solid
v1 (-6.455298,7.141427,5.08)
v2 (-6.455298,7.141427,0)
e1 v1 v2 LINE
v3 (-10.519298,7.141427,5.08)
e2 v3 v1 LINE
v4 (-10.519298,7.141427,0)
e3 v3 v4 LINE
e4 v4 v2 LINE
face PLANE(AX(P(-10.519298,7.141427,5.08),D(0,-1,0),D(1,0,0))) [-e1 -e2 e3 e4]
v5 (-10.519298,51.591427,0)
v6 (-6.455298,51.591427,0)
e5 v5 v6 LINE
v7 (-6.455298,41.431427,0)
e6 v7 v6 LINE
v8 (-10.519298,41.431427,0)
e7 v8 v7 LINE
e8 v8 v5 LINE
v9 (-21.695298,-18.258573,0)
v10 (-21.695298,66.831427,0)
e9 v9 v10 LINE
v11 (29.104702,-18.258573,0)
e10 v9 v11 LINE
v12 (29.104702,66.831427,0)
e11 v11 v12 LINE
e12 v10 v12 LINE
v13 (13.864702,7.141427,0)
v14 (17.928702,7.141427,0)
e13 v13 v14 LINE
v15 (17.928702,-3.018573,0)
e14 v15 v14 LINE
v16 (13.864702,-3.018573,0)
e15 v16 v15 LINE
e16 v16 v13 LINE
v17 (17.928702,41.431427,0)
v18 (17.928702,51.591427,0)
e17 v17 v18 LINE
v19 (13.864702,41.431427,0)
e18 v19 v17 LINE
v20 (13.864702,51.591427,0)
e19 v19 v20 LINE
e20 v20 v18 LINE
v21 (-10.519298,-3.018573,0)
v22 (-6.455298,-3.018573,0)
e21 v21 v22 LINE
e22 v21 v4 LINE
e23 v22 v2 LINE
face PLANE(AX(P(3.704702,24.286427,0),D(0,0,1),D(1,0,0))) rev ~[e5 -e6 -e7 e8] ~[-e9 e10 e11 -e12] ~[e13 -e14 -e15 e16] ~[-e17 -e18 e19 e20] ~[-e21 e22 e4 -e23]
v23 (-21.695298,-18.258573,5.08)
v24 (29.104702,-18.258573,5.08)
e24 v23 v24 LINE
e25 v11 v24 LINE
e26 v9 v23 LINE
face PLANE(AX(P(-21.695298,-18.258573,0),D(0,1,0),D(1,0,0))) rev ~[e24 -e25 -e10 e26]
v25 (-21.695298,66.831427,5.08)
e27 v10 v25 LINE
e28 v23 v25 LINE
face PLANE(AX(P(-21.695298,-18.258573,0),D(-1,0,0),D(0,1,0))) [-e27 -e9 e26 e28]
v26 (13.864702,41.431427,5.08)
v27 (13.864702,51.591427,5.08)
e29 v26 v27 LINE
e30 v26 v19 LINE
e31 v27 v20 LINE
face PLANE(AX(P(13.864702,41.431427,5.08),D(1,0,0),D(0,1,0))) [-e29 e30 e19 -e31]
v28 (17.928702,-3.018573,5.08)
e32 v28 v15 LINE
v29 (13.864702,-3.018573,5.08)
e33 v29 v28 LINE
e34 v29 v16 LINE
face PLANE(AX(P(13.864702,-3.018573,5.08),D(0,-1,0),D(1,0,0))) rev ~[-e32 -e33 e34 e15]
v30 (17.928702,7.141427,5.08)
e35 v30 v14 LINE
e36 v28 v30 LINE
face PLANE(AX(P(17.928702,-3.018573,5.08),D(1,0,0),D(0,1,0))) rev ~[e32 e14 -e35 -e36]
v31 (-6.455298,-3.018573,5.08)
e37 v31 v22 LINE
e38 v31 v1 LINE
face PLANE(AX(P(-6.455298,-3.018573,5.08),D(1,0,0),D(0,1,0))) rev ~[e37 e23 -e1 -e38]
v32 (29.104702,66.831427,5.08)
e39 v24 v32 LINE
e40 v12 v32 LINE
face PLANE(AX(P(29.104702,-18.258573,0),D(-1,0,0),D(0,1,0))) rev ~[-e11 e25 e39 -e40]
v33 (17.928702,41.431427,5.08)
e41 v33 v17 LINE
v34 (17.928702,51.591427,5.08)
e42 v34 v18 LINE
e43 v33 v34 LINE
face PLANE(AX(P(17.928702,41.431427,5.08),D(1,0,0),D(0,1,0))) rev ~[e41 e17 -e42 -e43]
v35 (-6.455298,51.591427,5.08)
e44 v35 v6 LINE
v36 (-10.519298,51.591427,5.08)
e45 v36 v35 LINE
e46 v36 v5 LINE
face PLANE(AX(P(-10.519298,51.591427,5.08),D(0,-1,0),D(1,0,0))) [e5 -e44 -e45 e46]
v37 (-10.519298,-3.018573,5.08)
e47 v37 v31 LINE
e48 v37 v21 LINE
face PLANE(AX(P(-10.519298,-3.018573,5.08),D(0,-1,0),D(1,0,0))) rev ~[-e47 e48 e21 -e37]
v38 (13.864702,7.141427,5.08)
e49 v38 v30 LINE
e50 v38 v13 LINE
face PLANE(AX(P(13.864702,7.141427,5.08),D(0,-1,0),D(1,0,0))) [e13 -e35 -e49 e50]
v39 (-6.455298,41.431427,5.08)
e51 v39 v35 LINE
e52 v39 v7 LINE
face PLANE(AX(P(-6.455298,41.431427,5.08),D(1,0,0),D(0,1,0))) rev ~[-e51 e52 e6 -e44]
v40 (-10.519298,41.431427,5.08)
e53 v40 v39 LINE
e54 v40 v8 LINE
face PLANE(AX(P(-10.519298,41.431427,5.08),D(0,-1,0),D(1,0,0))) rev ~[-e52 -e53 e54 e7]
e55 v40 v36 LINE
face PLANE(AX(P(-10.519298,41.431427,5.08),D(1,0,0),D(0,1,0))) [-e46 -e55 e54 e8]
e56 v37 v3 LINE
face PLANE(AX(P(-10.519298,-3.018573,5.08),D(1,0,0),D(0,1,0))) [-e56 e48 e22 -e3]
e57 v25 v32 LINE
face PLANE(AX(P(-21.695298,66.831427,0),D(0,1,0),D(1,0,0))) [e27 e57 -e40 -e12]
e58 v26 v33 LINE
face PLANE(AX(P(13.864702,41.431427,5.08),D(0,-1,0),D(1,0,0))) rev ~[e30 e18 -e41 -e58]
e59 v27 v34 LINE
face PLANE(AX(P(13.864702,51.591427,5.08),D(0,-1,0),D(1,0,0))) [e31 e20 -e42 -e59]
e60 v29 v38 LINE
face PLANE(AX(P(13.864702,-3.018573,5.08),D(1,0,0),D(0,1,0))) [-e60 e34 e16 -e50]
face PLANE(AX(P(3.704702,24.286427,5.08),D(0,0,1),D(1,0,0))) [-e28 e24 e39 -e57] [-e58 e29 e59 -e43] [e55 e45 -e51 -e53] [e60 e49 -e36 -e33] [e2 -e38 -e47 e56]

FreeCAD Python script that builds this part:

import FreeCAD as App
import Part
import Sketcher
from FreeCAD import Vector
Q = App.Units.Quantity


def add_polygon(sketch, points):
    """Adds a closed chain of lines whose ends are joined by coincident constraints."""
    first, n = sketch.GeometryCount, len(points)
    for a, b in zip(points, points[1:] + points[:1]):
        sketch.addGeometry(Part.LineSegment(App.Vector(*a, 0), App.Vector(*b, 0)), False)
    for i in range(n):
        sketch.addConstraint(Sketcher.Constraint("Coincident", first + i, 2, first + (i + 1) % n, 1))

doc = App.newDocument("Part")
body = doc.addObject("PartDesign::Body", "Body")

# Sketch on XY plane
sketch1 = doc.addObject("Sketcher::SketchObject", "Sketch")
body.addObject(sketch1)
sketch1.AttachmentSupport = (doc.XY_Plane, [""])
sketch1.MapMode = "FlatFace"
add_polygon(sketch1, [(-21.695298, 66.831427), (-21.695298, -18.258573), (29.104702, -18.258573), (29.104702, 66.831427)])  # lines 0-3
sketch1.addConstraint([
    Sketcher.Constraint("Vertical", 0),
    Sketcher.Constraint("Horizontal", 1),
    Sketcher.Constraint("Vertical", 2),
    Sketcher.Constraint("Horizontal", 3),
    Sketcher.Constraint("DistanceX", 1, 1, 1, 2, Q("2 in")),
    Sketcher.Constraint("DistanceY", 0, 2, 0, 1, Q("3.35 in")),
    Sketcher.Constraint("DistanceX", 0, 2, -1, 1, 21.695298),
    Sketcher.Constraint("DistanceY", 0, 2, -1, 1, 18.258573),
])
pad1 = doc.addObject("PartDesign::Pad", "Pad")
body.addObject(pad1)
pad1.Profile = sketch1
pad1.Length = Q("0.2 in")

# Sketch on XY plane
sketch2 = doc.addObject("Sketcher::SketchObject", "Sketch001")
body.addObject(sketch2)
sketch2.AttachmentSupport = (doc.XY_Plane, [""])
sketch2.MapMode = "FlatFace"
sketch2.AttachmentOffset = App.Placement(Vector(0, 0, 0.2 * 25.4), App.Rotation())
add_polygon(sketch2, [(-10.519298, 51.591427), (-10.519298, 41.431427), (-6.455298, 41.431427), (-6.455298, 51.591427)])  # lines 0-3
add_polygon(sketch2, [(13.864702, 51.591427), (13.864702, 41.431427), (17.928702, 41.431427), (17.928702, 51.591427)])  # lines 4-7
add_polygon(sketch2, [(-10.519298, 7.141427), (-10.519298, -3.018573), (-6.455298, -3.018573), (-6.455298, 7.141427)])  # lines 8-11
add_polygon(sketch2, [(13.864702, 7.141427), (13.864702, -3.018573), (17.928702, -3.018573), (17.928702, 7.141427)])  # lines 12-15
sketch2.addConstraint([
    Sketcher.Constraint("Vertical", 0),
    Sketcher.Constraint("Horizontal", 1),
    Sketcher.Constraint("Vertical", 2),
    Sketcher.Constraint("Horizontal", 3),
    Sketcher.Constraint("Vertical", 4),
    Sketcher.Constraint("Horizontal", 5),
    Sketcher.Constraint("Vertical", 6),
    Sketcher.Constraint("Horizontal", 7),
    Sketcher.Constraint("Vertical", 8),
    Sketcher.Constraint("Horizontal", 9),
    Sketcher.Constraint("Vertical", 10),
    Sketcher.Constraint("Horizontal", 11),
    Sketcher.Constraint("Vertical", 12),
    Sketcher.Constraint("Horizontal", 13),
    Sketcher.Constraint("Vertical", 14),
    Sketcher.Constraint("Horizontal", 15),
    Sketcher.Constraint("Horizontal", 1, 2, 4, 2),
    Sketcher.Constraint("Horizontal", 3, 2, 6, 2),
    Sketcher.Constraint("Horizontal", 9, 2, 12, 2),
    Sketcher.Constraint("Horizontal", 11, 2, 14, 2),
    Sketcher.Constraint("Vertical", 3, 2, 8, 2),
    Sketcher.Constraint("Vertical", 2, 2, 9, 2),
    Sketcher.Constraint("Vertical", 7, 2, 12, 2),
    Sketcher.Constraint("Vertical", 6, 2, 13, 2),
    Sketcher.Constraint("Equal", 3, 5),
    Sketcher.Constraint("Equal", 6, 8),
    Sketcher.Constraint("DistanceY", 0, 2, 0, 1, Q("0.4 in")),
    Sketcher.Constraint("DistanceX", 1, 1, 1, 2, Q("0.16 in")),
    Sketcher.Constraint("DistanceX", 1, 2, 4, 2, Q("0.8 in")),
    Sketcher.Constraint("DistanceY", 8, 2, 0, 2, Q("1.75 in")),
    Sketcher.Constraint("DistanceX", 0, 2, -1, 1, 10.519298),
    Sketcher.Constraint("DistanceY", -1, 1, 0, 2, 41.431427),
])
pocket1 = doc.addObject("PartDesign::Pocket", "Pocket")
body.addObject(pocket1)
pocket1.Profile = sketch2
pocket1.Length = Q("1 in")

doc.recompute()
